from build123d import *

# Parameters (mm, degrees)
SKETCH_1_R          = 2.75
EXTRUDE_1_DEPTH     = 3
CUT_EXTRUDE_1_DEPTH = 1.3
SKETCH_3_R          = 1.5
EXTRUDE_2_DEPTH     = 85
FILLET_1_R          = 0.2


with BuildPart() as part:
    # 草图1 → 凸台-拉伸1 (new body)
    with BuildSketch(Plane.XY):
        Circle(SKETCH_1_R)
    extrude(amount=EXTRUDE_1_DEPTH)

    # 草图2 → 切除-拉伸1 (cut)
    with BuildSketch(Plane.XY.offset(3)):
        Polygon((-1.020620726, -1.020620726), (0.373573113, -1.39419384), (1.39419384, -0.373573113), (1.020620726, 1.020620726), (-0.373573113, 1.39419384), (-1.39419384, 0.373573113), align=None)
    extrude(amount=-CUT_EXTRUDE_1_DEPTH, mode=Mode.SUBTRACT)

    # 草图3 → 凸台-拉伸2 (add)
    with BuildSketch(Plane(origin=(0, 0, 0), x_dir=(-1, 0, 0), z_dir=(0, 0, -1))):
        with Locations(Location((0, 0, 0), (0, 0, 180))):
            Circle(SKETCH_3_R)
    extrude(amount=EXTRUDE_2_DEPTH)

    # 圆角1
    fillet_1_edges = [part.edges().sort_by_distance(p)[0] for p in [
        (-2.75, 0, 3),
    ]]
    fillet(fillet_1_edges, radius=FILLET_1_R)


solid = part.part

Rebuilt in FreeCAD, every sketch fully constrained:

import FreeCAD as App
import Part
import Sketcher
from FreeCAD import Vector
Q = App.Units.Quantity


def edges_at(feature, points):
    """Names of the edges that pass closest to the given points."""
    edges = feature.Shape.Edges
    near = lambda p: min(range(len(edges)), key=lambda i: edges[i].distToShape(Part.Vertex(*p))[0])
    return sorted({f"Edge{near(p) + 1}" for p in points})


def add_polygon(sketch, points):
    """Adds a closed chain of lines whose ends are joined by coincident constraints."""
    first, n = sketch.GeometryCount, len(points)
    for a, b in zip(points, points[1:] + points[:1]):
        sketch.addGeometry(Part.LineSegment(App.Vector(*a, 0), App.Vector(*b, 0)), False)
    for i in range(n):
        sketch.addConstraint(Sketcher.Constraint("Coincident", first + i, 2, first + (i + 1) % n, 1))

doc = App.newDocument("Part")
params = doc.addObject("Spreadsheet::Sheet", "Params")
for row, (alias, value) in enumerate([
    ("sketch1_diameter", "5.5 mm"),
    ("pad1_length", "3 mm"),
    ("pocket1_length", "1.3 mm"),
    ("sketch3_diameter", "3 mm"),
    ("pad2_length", "85 mm"),
    ("fillet_radius", "0.2 mm"),
], start=1):
    params.set(f"A{row}", alias)
    params.set(f"B{row}", "=" + value)
    params.setAlias(f"B{row}", alias)

body = doc.addObject("PartDesign::Body", "Body")

sketch1 = doc.addObject("Sketcher::SketchObject", "Sketch")
body.addObject(sketch1)
sketch1.AttachmentSupport = (doc.XY_Plane, [""])
sketch1.MapMode = "FlatFace"
sketch1.addGeometry(Part.Circle(Vector(0, 0, 0), Vector(0, 0, 1), 2.75), False)
sketch1.addConstraint(Sketcher.Constraint("Coincident", 0, 3, -1, 1))
sketch1.addConstraint(Sketcher.Constraint("Diameter", 0, Q("5.5 mm")))
sketch1.setExpression("Constraints[1]", "Params.sketch1_diameter")
pad1 = doc.addObject("PartDesign::Pad", "Pad")
body.addObject(pad1)
pad1.Profile = sketch1
pad1.setExpression("Length", "Params.pad1_length")

sketch2 = doc.addObject("Sketcher::SketchObject", "Sketch001")
body.addObject(sketch2)
sketch2.AttachmentSupport = (doc.XY_Plane, [""])
sketch2.MapMode = "FlatFace"
sketch2.AttachmentOffset = App.Placement(Vector(0, 0, 3), App.Rotation())
add_polygon(sketch2, [(-1.020621, -1.020621), (0.373573, -1.394194), (1.394194, -0.373573), (1.020621, 1.020621), (-0.373573, 1.394194), (-1.394194, 0.373573)])
sketch2.addConstraint(Sketcher.Constraint("Symmetric", 0, 2, 3, 2, -1, 1))
sketch2.addConstraint(Sketcher.Constraint("Symmetric", 1, 2, 4, 2, -1, 1))
sketch2.addConstraint(Sketcher.Constraint("Symmetric", 2, 2, 5, 2, -1, 1))
sketch2.addConstraint(Sketcher.Constraint("Equal", 0, 1))
sketch2.addConstraint(Sketcher.Constraint("Equal", 1, 2))
sketch2.addConstraint(Sketcher.Constraint("Angle", 0, Q("-15 deg")))
sketch2.addConstraint(Sketcher.Constraint("Angle", 1, Q("45 deg")))
sketch2.addConstraint(Sketcher.Constraint("Angle", 2, Q("105 deg")))
sketch2.addConstraint(Sketcher.Constraint("DistanceX", -1, 1, 2, 2, Q("1.020621 mm")))
pocket1 = doc.addObject("PartDesign::Pocket", "Pocket")
body.addObject(pocket1)
pocket1.Profile = sketch2
pocket1.setExpression("Length", "Params.pocket1_length")

sketch3 = doc.addObject("Sketcher::SketchObject", "Sketch002")
body.addObject(sketch3)
sketch3.AttachmentSupport = (doc.XY_Plane, [""])
sketch3.MapMode = "FlatFace"
sketch3.addGeometry(Part.Circle(Vector(0, 0, 0), Vector(0, 0, 1), 1.5), False)
sketch3.addConstraint(Sketcher.Constraint("Coincident", 0, 3, -1, 1))
sketch3.addConstraint(Sketcher.Constraint("Diameter", 0, Q("3 mm")))
sketch3.setExpression("Constraints[1]", "Params.sketch3_diameter")
pad2 = doc.addObject("PartDesign::Pad", "Pad001")
body.addObject(pad2)
pad2.Profile = sketch3
pad2.setExpression("Length", "Params.pad2_length")
pad2.Reversed = True
doc.recompute()

fillet = doc.addObject("PartDesign::Fillet", "Fillet")
body.addObject(fillet)
fillet.Base = (pad2, edges_at(pad2, [(-2.75, 0, 3)]))
fillet.setExpression("Radius", "Params.fillet_radius")

doc.recompute()
